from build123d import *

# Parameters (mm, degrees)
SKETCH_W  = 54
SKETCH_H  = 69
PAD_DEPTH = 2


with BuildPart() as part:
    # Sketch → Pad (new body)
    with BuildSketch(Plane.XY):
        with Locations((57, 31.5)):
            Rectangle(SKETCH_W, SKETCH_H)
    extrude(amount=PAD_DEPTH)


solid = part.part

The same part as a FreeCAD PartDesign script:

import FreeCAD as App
import Part
import Sketcher
from FreeCAD import Vector

doc = App.newDocument("Part")
body = doc.addObject("PartDesign::Body", "Body")

# Sketch on XY plane
sketch1 = body.newObject("Sketcher::SketchObject", "Sketch")
sketch1.AttachmentSupport = (doc.getObject("XY_Plane"), [""])
sketch1.MapMode = "FlatFace"
sketch1.addGeometry([
    Part.LineSegment(Vector(30, 66, 0), Vector(30, -3, 0)),
    Part.LineSegment(Vector(30, -3, 0), Vector(84, -3, 0)),
    Part.LineSegment(Vector(84, -3, 0), Vector(84, 66, 0)),
    Part.LineSegment(Vector(84, 66, 0), Vector(30, 66, 0)),
], False)
sketch1.addConstraint([
    Sketcher.Constraint("Coincident", 0, 2, 1, 1),
    Sketcher.Constraint("Coincident", 1, 2, 2, 1),
    Sketcher.Constraint("Coincident", 2, 2, 3, 1),
    Sketcher.Constraint("Coincident", 3, 2, 0, 1),
    Sketcher.Constraint("Vertical", 0),
    Sketcher.Constraint("Horizontal", 1),
    Sketcher.Constraint("Vertical", 2),
    Sketcher.Constraint("Horizontal", 3),
    Sketcher.Constraint("DistanceX", 1, 1, 1, 2, 54.0),
    Sketcher.Constraint("DistanceY", 0, 2, 0, 1, 69.0),
    Sketcher.Constraint("DistanceX", -1, 1, 0, 2, 30.0),
    Sketcher.Constraint("DistanceY", 0, 2, -1, 1, 3.0),
])
pad1 = body.newObject("PartDesign::Pad", "Pad")
pad1.Profile = sketch1
pad1.Length = 2

doc.recompute()
